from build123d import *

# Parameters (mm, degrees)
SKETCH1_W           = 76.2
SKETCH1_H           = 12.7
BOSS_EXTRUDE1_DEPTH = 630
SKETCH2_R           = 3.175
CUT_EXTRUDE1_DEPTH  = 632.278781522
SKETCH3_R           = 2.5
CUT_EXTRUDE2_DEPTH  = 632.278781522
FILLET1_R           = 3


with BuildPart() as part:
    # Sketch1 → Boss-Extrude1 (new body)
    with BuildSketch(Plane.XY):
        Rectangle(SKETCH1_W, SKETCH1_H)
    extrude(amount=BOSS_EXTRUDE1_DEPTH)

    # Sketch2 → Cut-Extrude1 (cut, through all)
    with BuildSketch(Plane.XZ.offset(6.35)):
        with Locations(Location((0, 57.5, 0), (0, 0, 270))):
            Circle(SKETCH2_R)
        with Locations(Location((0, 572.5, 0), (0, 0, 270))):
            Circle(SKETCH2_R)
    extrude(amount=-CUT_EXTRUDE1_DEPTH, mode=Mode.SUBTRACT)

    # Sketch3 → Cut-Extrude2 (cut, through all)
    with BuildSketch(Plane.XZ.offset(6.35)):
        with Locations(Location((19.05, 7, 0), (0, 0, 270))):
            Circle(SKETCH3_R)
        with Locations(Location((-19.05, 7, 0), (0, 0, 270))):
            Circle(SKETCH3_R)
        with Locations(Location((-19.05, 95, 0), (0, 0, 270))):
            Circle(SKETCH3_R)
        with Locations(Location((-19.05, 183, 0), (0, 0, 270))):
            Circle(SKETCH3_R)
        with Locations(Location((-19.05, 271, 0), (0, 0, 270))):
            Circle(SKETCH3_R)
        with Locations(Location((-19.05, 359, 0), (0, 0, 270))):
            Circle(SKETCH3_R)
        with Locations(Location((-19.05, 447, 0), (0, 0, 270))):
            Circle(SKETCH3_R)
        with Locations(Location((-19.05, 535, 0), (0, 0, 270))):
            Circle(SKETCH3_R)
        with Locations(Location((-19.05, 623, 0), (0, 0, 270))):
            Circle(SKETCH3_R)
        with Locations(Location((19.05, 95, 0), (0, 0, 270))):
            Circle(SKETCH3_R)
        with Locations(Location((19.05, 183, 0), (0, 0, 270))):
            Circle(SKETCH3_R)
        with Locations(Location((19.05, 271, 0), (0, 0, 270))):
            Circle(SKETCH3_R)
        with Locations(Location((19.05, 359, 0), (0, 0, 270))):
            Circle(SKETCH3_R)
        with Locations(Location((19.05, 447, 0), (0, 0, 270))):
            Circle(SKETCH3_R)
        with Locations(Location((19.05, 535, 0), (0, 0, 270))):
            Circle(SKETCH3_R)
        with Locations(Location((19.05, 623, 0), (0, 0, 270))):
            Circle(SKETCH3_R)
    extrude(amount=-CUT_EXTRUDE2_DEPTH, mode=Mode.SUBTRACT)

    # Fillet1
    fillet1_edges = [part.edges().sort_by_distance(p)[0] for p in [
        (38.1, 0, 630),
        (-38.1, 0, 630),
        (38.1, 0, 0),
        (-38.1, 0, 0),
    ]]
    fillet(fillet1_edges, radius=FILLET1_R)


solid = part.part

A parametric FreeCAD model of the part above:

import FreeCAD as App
import Part
import Sketcher

V = App.Vector


def edges_at(feature, points):
    """Names of the edges that pass closest to the given points."""
    edges = feature.Shape.Edges
    near = lambda p: min(range(len(edges)), key=lambda i: edges[i].distToShape(Part.Vertex(*p))[0])
    return sorted({f"Edge{near(p) + 1}" for p in points})

doc = App.newDocument("Part")
params = doc.addObject("Spreadsheet::Sheet", "Params")
for row, (alias, value) in enumerate([
    ("sketch1_width", "76.2 mm"),
    ("sketch1_height", "12.7 mm"),
    ("pad1_length", "630 mm"),
    ("sketch2_diameter", "6.35 mm"),
    ("sketch3_diameter", "5 mm"),
    ("fillet_radius", "3 mm"),
], start=1):
    params.set(f"A{row}", alias)
    params.set(f"B{row}", "=" + value)
    params.setAlias(f"B{row}", alias)

body = doc.addObject("PartDesign::Body", "Body")

# Sketch on XY plane
sketch1 = body.newObject("Sketcher::SketchObject", "Sketch")
sketch1.AttachmentSupport = (doc.getObject("XY_Plane"), [""])
sketch1.MapMode = "FlatFace"
sketch1.addGeometry([
    Part.LineSegment(V(-38, 6, 0), V(-38, -6, 0)),
    Part.LineSegment(V(-38, -6, 0), V(38, -6, 0)),
    Part.LineSegment(V(38, -6, 0), V(38, 6, 0)),
    Part.LineSegment(V(38, 6, 0), V(-38, 6, 0)),
], False)
sketch1.addConstraint([
    Sketcher.Constraint("Coincident", 0, 2, 1, 1),
    Sketcher.Constraint("Coincident", 1, 2, 2, 1),
    Sketcher.Constraint("Coincident", 2, 2, 3, 1),
    Sketcher.Constraint("Coincident", 3, 2, 0, 1),
    Sketcher.Constraint("Vertical", 0),
    Sketcher.Constraint("Horizontal", 1),
    Sketcher.Constraint("Vertical", 2),
    Sketcher.Constraint("Horizontal", 3),
    Sketcher.Constraint("Symmetric", 0, 2, 2, 2, -1, 1),
    Sketcher.Constraint("DistanceX", 1, 1, 1, 2, 76.2),
    Sketcher.Constraint("DistanceY", 0, 2, 0, 1, 12.7),
])
sketch1.setExpression("Constraints[9]", "Params.sketch1_width")
sketch1.setExpression("Constraints[10]", "Params.sketch1_height")
pad1 = body.newObject("PartDesign::Pad", "Pad")
pad1.Profile = sketch1
pad1.setExpression("Length", "Params.pad1_length")

# Sketch on XZ plane
sketch2 = body.newObject("Sketcher::SketchObject", "Sketch001")
sketch2.AttachmentSupport = (doc.getObject("XZ_Plane"), [""])
sketch2.MapMode = "FlatFace"
sketch2.AttachmentOffset = App.Placement(V(0, 0, 6.35), App.Rotation())
sketch2.addGeometry([
    Part.Circle(V(0, 57.5, 0), V(0, 0, 1), 3.2),
    Part.Circle(V(0, 572.5, 0), V(0, 0, 1), 3.2),
], False)
sketch2.addConstraint([
    Sketcher.Constraint("Equal", 0, 1),
    Sketcher.Constraint("PointOnObject", 0, 3, -2),
    Sketcher.Constraint("PointOnObject", 1, 3, -2),
    Sketcher.Constraint("Diameter", 0, 6.35),
    Sketcher.Constraint("DistanceY", 0, 3, 1, 3, 515.0),
    Sketcher.Constraint("DistanceY", -1, 1, 0, 3, 57.5),
])
sketch2.setExpression("Constraints[3]", "Params.sketch2_diameter")
pocket1 = body.newObject("PartDesign::Pocket", "Pocket")
pocket1.Profile = sketch2
pocket1.Type = "ThroughAll"

# Sketch on XZ plane
sketch3 = body.newObject("Sketcher::SketchObject", "Sketch002")
sketch3.AttachmentSupport = (doc.getObject("XZ_Plane"), [""])
sketch3.MapMode = "FlatFace"
sketch3.AttachmentOffset = App.Placement(V(0, 0, 6.35), App.Rotation())
sketch3.addGeometry([
    Part.Circle(V(19.1, 7, 0), V(0, 0, 1), 2.5),  # 0
    Part.Circle(V(-19.1, 7, 0), V(0, 0, 1), 2.5),  # 1
    Part.Circle(V(-19.1, 95, 0), V(0, 0, 1), 2.5),  # 2
    Part.Circle(V(-19.1, 183, 0), V(0, 0, 1), 2.5),  # 3
    Part.Circle(V(-19.1, 271, 0), V(0, 0, 1), 2.5),  # 4
    Part.Circle(V(-19.1, 359, 0), V(0, 0, 1), 2.5),  # 5
    Part.Circle(V(-19.1, 447, 0), V(0, 0, 1), 2.5),  # 6
    Part.Circle(V(-19.1, 535, 0), V(0, 0, 1), 2.5),  # 7
    Part.Circle(V(-19.1, 623, 0), V(0, 0, 1), 2.5),  # 8
    Part.Circle(V(19.1, 95, 0), V(0, 0, 1), 2.5),  # 9
    Part.Circle(V(19.1, 183, 0), V(0, 0, 1), 2.5),  # 10
    Part.Circle(V(19.1, 271, 0), V(0, 0, 1), 2.5),  # 11
    Part.Circle(V(19.1, 359, 0), V(0, 0, 1), 2.5),  # 12
    Part.Circle(V(19.1, 447, 0), V(0, 0, 1), 2.5),  # 13
    Part.Circle(V(19.1, 535, 0), V(0, 0, 1), 2.5),  # 14
    Part.Circle(V(19.1, 623, 0), V(0, 0, 1), 2.5),  # 15
], False)
sketch3.addConstraint([
    Sketcher.Constraint("Equal", 0, 1),
    Sketcher.Constraint("Equal", 1, 2),
    Sketcher.Constraint("Equal", 2, 3),
    Sketcher.Constraint("Equal", 3, 4),
    Sketcher.Constraint("Equal", 4, 5),
    Sketcher.Constraint("Equal", 5, 6),
    Sketcher.Constraint("Equal", 6, 7),
    Sketcher.Constraint("Equal", 7, 8),
    Sketcher.Constraint("Equal", 8, 9),
    Sketcher.Constraint("Equal", 9, 10),
    Sketcher.Constraint("Equal", 10, 11),
    Sketcher.Constraint("Equal", 11, 12),
    Sketcher.Constraint("Equal", 12, 13),
    Sketcher.Constraint("Equal", 13, 14),
    Sketcher.Constraint("Equal", 14, 15),
    Sketcher.Constraint("Symmetric", 0, 3, 1, 3, -2),
    Sketcher.Constraint("Symmetric", 2, 3, 9, 3, -2),
    Sketcher.Constraint("Symmetric", 3, 3, 10, 3, -2),
    Sketcher.Constraint("Symmetric", 4, 3, 11, 3, -2),
    Sketcher.Constraint("Symmetric", 5, 3, 12, 3, -2),
    Sketcher.Constraint("Symmetric", 6, 3, 13, 3, -2),
    Sketcher.Constraint("Symmetric", 7, 3, 14, 3, -2),
    Sketcher.Constraint("Symmetric", 8, 3, 15, 3, -2),
    Sketcher.Constraint("Vertical", 1, 3, 2, 3),
    Sketcher.Constraint("Vertical", 2, 3, 3, 3),
    Sketcher.Constraint("Vertical", 3, 3, 4, 3),
    Sketcher.Constraint("Vertical", 4, 3, 5, 3),
    Sketcher.Constraint("Vertical", 5, 3, 6, 3),
    Sketcher.Constraint("Vertical", 6, 3, 7, 3),
    Sketcher.Constraint("Vertical", 7, 3, 8, 3),
    Sketcher.Constraint("Diameter", 0, 5.0),
    Sketcher.Constraint("DistanceY", -1, 1, 0, 3, 7.0),
    Sketcher.Constraint("DistanceY", -1, 1, 2, 3, 95.0),
    Sketcher.Constraint("DistanceY", -1, 1, 3, 3, 183.0),
    Sketcher.Constraint("DistanceY", -1, 1, 4, 3, 271.0),
    Sketcher.Constraint("DistanceY", -1, 1, 5, 3, 359.0),
    Sketcher.Constraint("DistanceY", -1, 1, 6, 3, 447.0),
    Sketcher.Constraint("DistanceY", -1, 1, 7, 3, 535.0),
    Sketcher.Constraint("DistanceY", -1, 1, 8, 3, 623.0),
    Sketcher.Constraint("DistanceX", 1, 3, 0, 3, 38.1),
])
sketch3.setExpression("Constraints[30]", "Params.sketch3_diameter")
pocket2 = body.newObject("PartDesign::Pocket", "Pocket001")
pocket2.Profile = sketch3
pocket2.Type = "ThroughAll"
doc.recompute()

fillet = body.newObject("PartDesign::Fillet", "Fillet")
fillet.Base = (pocket2, edges_at(pocket2, [
    (38.1, 0, 630),
    (-38.1, 0, 630),
    (38.1, 0, 0),
    (-38.1, 0, 0),
]))
fillet.setExpression("Radius", "Params.fillet_radius")

doc.recompute()
